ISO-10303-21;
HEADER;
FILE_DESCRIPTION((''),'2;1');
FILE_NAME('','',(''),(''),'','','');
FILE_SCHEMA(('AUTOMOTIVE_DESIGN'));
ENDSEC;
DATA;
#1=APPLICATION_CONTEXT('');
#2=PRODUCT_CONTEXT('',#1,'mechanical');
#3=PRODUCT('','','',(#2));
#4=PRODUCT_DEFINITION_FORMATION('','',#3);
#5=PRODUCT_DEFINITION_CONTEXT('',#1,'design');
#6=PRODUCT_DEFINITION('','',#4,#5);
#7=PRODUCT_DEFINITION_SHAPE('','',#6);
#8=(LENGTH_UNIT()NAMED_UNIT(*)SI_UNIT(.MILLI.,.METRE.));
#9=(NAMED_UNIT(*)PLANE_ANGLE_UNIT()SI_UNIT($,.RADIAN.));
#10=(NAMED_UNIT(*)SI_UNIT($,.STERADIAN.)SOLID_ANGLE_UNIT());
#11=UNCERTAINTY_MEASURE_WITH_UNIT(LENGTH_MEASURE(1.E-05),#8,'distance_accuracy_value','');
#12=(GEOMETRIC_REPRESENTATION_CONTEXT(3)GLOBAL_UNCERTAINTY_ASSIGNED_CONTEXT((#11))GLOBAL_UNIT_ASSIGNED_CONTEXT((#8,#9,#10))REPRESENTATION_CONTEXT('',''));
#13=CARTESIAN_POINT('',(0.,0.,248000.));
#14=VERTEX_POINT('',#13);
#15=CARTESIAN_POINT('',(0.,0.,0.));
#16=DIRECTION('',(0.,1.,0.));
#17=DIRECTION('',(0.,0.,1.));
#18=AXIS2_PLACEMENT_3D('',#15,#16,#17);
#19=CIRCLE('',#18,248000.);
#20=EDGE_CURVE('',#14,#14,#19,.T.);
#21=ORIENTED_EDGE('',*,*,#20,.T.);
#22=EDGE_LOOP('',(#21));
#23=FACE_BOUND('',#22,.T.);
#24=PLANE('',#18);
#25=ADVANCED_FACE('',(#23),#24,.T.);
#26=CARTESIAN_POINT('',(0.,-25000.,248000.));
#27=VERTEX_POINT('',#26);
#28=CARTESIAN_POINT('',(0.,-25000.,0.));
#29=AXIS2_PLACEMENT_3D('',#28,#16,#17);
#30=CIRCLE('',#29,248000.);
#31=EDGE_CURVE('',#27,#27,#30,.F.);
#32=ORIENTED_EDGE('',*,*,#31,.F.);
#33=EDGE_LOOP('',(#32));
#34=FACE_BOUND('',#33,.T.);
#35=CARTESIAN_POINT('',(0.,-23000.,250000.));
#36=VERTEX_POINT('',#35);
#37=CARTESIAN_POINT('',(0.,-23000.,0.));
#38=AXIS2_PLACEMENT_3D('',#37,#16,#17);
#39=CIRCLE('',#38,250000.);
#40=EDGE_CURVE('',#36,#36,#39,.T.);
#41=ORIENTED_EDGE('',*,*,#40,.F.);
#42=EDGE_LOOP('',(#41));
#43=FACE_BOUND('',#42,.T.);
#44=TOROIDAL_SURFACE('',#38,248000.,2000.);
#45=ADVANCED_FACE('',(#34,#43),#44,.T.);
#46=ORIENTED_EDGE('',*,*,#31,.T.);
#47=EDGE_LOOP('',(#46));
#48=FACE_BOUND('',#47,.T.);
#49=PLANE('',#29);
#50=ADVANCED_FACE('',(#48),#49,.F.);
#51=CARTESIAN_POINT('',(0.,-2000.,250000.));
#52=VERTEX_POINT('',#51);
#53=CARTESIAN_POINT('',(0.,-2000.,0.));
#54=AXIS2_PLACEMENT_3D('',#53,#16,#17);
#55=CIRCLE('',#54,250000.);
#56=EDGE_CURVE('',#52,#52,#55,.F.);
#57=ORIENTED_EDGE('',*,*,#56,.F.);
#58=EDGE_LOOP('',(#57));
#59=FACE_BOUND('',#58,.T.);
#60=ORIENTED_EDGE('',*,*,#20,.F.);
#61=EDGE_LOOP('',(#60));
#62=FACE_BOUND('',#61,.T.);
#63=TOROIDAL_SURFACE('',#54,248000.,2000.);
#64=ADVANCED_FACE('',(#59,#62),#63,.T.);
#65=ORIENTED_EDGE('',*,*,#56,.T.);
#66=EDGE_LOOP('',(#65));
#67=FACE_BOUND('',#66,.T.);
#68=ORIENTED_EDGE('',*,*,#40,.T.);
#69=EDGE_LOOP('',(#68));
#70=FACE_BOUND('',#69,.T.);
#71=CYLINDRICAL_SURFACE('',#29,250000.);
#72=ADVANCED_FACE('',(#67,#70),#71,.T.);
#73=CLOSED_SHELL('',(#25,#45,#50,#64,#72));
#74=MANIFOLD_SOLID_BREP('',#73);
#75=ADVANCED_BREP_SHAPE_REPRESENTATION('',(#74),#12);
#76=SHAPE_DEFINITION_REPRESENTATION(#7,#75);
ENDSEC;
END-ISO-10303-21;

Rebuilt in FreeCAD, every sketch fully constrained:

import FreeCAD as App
import Part
import Sketcher
from FreeCAD import Vector


def edges_at(feature, points):
    """Names of the edges that pass closest to the given points."""
    edges = feature.Shape.Edges
    near = lambda p: min(range(len(edges)), key=lambda i: edges[i].distToShape(Part.Vertex(*p))[0])
    return sorted({f"Edge{near(p) + 1}" for p in points})

doc = App.newDocument("Part")
params = doc.addObject("Spreadsheet::Sheet", "Params")
for row, (alias, value) in enumerate([
    ("sketch1_diameter", "500000 mm"),
    ("pad1_length", "25000 mm"),
    ("fillet_radius", "2000 mm"),
], start=1):
    params.set(f"A{row}", alias)
    params.set(f"B{row}", "=" + value)
    params.setAlias(f"B{row}", alias)

body = doc.addObject("PartDesign::Body", "Body")

# Sketch on XZ plane
sketch1 = body.newObject("Sketcher::SketchObject", "Sketch")
sketch1.AttachmentSupport = (doc.getObject("XZ_Plane"), [""])
sketch1.MapMode = "FlatFace"
sketch1.addGeometry(Part.Circle(Vector(0, 0, 0), Vector(0, 0, 1), 250000), False)
sketch1.addConstraint(Sketcher.Constraint("Coincident", 0, 3, -1, 1))
sketch1.addConstraint(Sketcher.Constraint("Diameter", 0, 500000.0))
sketch1.setExpression("Constraints[1]", "Params.sketch1_diameter")
pad1 = body.newObject("PartDesign::Pad", "Pad")
pad1.Profile = sketch1
pad1.setExpression("Length", "Params.pad1_length")
doc.recompute()

fillet = body.newObject("PartDesign::Fillet", "Fillet")
fillet.Base = (pad1, edges_at(pad1, [(0, 0, -250000), (0, -25000, -250000)]))
fillet.setExpression("Radius", "Params.fillet_radius")

doc.recompute()
